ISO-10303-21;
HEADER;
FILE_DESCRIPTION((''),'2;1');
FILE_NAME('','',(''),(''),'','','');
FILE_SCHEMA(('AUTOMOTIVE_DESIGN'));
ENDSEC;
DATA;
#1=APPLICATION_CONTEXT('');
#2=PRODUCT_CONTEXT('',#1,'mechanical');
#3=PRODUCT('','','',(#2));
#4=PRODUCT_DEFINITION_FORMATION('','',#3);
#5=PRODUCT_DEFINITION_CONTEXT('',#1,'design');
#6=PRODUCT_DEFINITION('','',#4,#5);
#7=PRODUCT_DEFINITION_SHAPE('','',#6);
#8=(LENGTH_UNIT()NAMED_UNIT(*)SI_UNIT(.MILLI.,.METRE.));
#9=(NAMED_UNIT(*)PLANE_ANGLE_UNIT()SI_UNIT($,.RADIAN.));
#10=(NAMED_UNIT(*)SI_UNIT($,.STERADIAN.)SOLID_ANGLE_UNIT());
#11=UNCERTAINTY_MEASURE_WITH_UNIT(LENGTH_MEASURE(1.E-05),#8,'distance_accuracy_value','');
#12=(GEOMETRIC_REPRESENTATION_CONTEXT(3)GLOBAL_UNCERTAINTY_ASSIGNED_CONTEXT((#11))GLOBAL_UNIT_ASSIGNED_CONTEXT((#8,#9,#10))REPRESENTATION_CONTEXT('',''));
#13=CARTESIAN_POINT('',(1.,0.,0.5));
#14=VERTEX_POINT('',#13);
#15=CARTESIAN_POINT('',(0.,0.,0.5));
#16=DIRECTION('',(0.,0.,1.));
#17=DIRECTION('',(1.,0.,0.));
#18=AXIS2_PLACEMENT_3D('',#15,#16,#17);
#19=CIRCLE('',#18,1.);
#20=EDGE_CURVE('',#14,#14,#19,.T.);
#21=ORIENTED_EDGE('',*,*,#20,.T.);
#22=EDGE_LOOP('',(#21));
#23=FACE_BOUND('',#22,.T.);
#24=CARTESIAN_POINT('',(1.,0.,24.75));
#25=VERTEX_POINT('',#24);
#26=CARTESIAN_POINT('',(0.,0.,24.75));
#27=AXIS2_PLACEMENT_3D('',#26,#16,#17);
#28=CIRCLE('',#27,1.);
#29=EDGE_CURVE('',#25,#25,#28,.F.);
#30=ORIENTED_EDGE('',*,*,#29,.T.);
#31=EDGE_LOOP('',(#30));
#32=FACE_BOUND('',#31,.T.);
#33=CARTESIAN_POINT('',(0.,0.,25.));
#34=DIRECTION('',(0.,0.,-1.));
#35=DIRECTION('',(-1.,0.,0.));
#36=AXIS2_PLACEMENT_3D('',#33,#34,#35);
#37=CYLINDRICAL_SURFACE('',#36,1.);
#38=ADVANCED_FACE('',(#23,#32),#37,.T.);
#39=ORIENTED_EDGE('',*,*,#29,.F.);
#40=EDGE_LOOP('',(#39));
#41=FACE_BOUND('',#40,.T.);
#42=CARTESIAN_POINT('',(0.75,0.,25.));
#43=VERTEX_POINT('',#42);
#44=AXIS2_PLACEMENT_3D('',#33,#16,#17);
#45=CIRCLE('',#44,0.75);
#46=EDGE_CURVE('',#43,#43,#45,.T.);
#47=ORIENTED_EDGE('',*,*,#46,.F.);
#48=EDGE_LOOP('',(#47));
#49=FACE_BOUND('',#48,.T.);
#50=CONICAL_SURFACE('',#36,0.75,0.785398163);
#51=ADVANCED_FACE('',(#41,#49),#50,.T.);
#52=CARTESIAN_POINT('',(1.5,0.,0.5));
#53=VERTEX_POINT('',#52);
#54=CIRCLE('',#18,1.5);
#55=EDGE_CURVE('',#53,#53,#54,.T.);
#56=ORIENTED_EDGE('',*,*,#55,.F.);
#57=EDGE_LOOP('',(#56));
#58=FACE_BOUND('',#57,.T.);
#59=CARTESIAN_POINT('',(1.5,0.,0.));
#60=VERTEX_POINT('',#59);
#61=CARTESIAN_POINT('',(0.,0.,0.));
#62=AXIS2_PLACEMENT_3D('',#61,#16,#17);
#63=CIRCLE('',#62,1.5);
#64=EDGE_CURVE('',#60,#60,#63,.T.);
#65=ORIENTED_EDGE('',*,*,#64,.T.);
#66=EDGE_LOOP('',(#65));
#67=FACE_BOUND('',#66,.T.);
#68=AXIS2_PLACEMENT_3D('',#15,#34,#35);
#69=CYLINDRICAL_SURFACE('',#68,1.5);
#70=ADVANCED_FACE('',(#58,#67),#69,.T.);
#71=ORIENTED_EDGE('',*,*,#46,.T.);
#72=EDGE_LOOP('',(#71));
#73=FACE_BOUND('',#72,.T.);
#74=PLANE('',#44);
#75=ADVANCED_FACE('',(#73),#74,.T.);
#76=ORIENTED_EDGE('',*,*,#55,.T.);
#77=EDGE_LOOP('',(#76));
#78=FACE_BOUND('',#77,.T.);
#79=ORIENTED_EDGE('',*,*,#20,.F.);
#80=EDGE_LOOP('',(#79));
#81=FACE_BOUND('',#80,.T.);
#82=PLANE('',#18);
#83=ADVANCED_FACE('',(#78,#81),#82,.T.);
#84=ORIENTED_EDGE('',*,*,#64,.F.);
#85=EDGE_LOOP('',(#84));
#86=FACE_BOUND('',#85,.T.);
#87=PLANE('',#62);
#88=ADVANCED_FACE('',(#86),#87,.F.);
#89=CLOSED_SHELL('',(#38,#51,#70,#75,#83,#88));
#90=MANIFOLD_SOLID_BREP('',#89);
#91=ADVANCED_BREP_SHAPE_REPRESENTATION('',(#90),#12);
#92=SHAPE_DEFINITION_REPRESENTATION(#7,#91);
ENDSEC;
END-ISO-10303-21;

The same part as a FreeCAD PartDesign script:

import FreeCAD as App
import Part
import Sketcher

V = App.Vector


def edges_at(feature, points):
    """Names of the edges that pass closest to the given points."""
    edges = feature.Shape.Edges
    near = lambda p: min(range(len(edges)), key=lambda i: edges[i].distToShape(Part.Vertex(*p))[0])
    return sorted({f"Edge{near(p) + 1}" for p in points})

doc = App.newDocument("Part")
body = doc.addObject("PartDesign::Body", "Body")

# Sketch on XY plane
sketch1 = body.newObject("Sketcher::SketchObject", "Sketch")
sketch1.AttachmentSupport = (doc.getObject("XY_Plane"), [""])
sketch1.MapMode = "FlatFace"
sketch1.addGeometry(Part.Circle(V(0, 0, 0), V(0, 0, 1), 1.5), False)
sketch1.addConstraint([
    Sketcher.Constraint("Coincident", 0, 3, -1, 1),
    Sketcher.Constraint("Diameter", 0, 3.0),
])
pad1 = body.newObject("PartDesign::Pad", "Pad")
pad1.Profile = sketch1
pad1.Length = 0.5

# Sketch on XY plane
sketch2 = body.newObject("Sketcher::SketchObject", "Sketch001")
sketch2.AttachmentSupport = (doc.getObject("XY_Plane"), [""])
sketch2.MapMode = "FlatFace"
sketch2.AttachmentOffset = App.Placement(V(0, 0, 0.5), App.Rotation())
sketch2.addGeometry(Part.Circle(V(0, 0, 0), V(0, 0, 1), 1), False)
sketch2.addConstraint([
    Sketcher.Constraint("Coincident", 0, 3, -1, 1),
    Sketcher.Constraint("Diameter", 0, 2.0),
])
pad2 = body.newObject("PartDesign::Pad", "Pad001")
pad2.Profile = sketch2
pad2.Length = 24.5
doc.recompute()

chamfer = body.newObject("PartDesign::Chamfer", "Chamfer")
chamfer.Base = (pad2, edges_at(pad2, [(-1, 0, 25)]))
chamfer.Size = 0.25

doc.recompute()
